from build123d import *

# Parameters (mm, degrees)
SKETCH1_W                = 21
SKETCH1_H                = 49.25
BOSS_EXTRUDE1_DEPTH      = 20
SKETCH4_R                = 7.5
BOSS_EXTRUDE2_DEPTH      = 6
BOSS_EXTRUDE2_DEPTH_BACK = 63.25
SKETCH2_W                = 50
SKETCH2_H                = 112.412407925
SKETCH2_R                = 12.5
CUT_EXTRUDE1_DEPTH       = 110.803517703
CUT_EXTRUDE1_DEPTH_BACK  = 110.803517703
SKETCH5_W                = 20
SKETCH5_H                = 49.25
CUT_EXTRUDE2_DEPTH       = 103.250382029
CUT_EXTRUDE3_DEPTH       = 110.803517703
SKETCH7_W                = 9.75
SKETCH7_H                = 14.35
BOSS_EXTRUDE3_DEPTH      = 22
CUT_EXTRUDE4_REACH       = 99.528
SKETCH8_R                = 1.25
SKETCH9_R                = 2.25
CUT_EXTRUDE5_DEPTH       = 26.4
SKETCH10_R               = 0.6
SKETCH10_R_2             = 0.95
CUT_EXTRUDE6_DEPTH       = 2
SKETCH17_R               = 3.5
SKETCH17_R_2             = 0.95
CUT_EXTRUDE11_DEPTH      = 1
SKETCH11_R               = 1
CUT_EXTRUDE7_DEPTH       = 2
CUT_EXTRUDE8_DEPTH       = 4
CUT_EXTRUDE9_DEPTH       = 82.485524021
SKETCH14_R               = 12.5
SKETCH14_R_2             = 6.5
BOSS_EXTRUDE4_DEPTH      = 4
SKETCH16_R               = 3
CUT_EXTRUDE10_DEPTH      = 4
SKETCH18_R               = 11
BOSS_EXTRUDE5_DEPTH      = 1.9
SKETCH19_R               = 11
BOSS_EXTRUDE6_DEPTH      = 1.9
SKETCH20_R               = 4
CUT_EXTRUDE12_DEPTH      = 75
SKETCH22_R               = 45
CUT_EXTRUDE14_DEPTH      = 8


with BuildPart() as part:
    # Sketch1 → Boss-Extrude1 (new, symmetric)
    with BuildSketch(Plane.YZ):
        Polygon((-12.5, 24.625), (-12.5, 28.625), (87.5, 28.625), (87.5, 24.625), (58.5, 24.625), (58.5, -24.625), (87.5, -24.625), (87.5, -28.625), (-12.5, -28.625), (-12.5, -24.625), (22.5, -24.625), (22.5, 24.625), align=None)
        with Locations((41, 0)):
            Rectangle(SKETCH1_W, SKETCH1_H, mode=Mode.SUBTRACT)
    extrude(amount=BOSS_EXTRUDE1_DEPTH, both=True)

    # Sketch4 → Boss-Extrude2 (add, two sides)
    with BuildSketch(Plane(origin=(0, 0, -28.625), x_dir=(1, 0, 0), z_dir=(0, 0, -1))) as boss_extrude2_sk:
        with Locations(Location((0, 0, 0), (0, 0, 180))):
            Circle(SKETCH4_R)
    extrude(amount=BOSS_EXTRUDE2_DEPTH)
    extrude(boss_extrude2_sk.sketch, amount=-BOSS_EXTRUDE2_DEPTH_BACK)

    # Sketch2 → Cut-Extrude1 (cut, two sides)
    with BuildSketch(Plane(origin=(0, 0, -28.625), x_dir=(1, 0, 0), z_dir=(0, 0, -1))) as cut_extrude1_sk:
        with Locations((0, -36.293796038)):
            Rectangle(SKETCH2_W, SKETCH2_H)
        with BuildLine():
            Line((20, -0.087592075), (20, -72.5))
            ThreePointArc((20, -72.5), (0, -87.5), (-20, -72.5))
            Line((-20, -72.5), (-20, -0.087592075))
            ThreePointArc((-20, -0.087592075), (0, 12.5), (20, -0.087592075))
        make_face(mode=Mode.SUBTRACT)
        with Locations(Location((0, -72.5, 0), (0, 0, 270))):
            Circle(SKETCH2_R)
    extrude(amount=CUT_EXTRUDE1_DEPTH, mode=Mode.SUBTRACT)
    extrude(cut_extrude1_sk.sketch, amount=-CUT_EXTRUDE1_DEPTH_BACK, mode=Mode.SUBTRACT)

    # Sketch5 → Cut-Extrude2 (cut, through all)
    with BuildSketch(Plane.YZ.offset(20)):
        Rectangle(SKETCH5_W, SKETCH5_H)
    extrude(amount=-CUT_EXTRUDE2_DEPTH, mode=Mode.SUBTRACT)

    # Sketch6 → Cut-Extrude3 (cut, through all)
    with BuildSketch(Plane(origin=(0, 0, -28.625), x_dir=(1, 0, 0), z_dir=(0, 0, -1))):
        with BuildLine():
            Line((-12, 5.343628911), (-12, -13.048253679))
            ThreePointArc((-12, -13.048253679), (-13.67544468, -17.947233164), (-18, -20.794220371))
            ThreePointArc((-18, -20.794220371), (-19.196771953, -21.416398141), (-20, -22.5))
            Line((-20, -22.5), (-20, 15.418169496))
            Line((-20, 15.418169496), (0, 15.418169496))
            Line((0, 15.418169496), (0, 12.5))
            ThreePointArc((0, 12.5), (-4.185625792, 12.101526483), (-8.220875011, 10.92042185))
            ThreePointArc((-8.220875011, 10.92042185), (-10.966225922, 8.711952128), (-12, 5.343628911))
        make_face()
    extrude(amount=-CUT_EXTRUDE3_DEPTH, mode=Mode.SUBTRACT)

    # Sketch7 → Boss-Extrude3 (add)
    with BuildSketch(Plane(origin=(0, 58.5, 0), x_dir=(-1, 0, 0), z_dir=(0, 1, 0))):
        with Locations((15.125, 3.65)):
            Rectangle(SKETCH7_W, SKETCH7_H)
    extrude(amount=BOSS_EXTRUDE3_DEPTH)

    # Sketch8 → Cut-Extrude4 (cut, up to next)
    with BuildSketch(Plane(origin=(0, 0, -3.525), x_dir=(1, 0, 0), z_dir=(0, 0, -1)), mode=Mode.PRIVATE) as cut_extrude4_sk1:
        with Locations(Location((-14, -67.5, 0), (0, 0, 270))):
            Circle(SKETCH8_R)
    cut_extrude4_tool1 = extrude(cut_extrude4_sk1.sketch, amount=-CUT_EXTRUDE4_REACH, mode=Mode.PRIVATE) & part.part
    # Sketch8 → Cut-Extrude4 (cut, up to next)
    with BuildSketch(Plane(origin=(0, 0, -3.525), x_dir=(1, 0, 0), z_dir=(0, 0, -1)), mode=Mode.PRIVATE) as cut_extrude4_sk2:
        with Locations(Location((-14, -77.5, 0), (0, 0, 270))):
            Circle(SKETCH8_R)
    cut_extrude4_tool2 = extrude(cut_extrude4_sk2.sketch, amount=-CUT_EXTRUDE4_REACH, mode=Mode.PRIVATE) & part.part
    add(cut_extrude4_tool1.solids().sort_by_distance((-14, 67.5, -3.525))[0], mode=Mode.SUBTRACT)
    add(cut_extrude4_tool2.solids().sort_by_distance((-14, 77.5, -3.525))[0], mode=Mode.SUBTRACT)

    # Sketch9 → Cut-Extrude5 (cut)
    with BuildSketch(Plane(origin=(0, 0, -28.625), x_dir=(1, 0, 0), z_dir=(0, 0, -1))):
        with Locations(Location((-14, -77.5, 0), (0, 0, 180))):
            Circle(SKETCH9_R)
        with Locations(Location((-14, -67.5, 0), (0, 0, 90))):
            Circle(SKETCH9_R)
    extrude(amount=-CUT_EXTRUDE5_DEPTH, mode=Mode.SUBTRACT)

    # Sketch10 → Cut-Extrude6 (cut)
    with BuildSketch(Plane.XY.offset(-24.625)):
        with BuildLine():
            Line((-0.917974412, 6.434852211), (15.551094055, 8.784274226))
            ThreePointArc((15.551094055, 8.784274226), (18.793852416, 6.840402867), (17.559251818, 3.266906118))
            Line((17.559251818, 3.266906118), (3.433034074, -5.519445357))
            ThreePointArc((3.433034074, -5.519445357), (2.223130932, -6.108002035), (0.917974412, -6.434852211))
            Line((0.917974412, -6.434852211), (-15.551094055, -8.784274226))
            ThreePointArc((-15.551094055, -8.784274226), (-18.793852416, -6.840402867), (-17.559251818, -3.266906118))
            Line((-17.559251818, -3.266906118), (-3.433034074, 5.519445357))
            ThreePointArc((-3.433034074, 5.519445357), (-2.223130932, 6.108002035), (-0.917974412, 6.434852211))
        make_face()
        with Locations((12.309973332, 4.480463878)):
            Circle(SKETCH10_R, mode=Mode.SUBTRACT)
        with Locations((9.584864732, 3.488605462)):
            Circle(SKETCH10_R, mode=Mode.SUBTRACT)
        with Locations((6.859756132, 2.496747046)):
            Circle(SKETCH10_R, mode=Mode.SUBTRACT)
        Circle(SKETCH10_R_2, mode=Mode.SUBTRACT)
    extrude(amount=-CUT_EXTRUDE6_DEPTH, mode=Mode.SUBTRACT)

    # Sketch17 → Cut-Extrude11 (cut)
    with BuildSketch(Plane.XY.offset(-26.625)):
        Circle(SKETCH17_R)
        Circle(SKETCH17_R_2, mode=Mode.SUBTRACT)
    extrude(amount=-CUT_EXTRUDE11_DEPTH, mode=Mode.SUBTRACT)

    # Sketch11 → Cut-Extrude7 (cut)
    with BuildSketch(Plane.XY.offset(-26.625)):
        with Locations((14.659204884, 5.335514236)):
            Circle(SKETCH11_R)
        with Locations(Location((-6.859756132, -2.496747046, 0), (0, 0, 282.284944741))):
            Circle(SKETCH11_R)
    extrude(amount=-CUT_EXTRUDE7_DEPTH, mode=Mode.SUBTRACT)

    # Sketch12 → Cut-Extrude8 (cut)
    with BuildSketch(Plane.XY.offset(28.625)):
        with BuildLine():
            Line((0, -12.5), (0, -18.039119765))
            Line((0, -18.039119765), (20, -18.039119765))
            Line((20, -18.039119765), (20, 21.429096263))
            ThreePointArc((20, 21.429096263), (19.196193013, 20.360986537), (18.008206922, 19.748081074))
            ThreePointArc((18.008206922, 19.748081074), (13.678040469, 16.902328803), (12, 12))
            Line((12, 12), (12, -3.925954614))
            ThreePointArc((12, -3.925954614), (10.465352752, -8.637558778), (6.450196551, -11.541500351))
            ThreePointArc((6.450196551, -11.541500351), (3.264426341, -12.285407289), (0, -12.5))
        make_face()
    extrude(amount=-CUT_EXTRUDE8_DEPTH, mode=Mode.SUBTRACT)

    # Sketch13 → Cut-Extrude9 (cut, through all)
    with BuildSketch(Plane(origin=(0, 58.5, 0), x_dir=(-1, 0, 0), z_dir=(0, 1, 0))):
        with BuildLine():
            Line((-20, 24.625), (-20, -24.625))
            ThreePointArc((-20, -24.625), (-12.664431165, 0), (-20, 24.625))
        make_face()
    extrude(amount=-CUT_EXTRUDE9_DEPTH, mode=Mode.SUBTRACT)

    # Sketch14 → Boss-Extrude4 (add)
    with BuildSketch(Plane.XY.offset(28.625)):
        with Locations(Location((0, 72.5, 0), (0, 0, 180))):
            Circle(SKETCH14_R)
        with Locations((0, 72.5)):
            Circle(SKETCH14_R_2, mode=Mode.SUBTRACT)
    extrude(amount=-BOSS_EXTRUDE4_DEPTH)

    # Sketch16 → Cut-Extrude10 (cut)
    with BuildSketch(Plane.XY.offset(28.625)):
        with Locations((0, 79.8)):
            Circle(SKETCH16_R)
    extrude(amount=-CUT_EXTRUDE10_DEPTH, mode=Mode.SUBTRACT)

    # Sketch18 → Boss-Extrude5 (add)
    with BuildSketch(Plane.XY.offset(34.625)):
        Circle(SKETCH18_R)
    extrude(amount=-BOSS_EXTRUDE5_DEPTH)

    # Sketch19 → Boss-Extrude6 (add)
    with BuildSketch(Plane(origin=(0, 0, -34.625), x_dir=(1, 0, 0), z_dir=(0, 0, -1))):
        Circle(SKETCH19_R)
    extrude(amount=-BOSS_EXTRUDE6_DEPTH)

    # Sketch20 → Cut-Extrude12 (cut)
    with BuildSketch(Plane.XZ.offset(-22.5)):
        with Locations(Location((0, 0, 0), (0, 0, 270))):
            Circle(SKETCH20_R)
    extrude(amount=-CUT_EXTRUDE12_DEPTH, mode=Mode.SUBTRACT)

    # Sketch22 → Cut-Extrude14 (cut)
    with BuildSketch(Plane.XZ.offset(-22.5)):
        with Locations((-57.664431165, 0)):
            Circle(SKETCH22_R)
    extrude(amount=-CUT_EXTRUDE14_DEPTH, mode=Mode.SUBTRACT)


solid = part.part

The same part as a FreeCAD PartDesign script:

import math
import FreeCAD as App
import Part
import Sketcher

doc = App.newDocument("Part")
body = doc.addObject("PartDesign::Body", "Body")

# Sketch on YZ plane
sketch1 = doc.addObject("Sketcher::SketchObject", "Sketch")
body.addObject(sketch1)
sketch1.AttachmentSupport = (doc.YZ_Plane, [""])
sketch1.MapMode = "FlatFace"
sketch1.addGeometry(Part.LineSegment(App.Vector(-12.5, 28.6, 0), App.Vector(-12.5, 24.6, 0)), False)
sketch1.addGeometry(Part.LineSegment(App.Vector(-12.5, 24.6, 0), App.Vector(22.5, 24.6, 0)), False)
sketch1.addGeometry(Part.LineSegment(App.Vector(22.5, 24.6, 0), App.Vector(22.5, -24.6, 0)), False)
sketch1.addGeometry(Part.LineSegment(App.Vector(22.5, -24.6, 0), App.Vector(-12.5, -24.6, 0)), False)
sketch1.addGeometry(Part.LineSegment(App.Vector(-12.5, -24.6, 0), App.Vector(-12.5, -28.6, 0)), False)
sketch1.addGeometry(Part.LineSegment(App.Vector(-12.5, -28.6, 0), App.Vector(87.5, -28.6, 0)), False)
sketch1.addGeometry(Part.LineSegment(App.Vector(87.5, -28.6, 0), App.Vector(87.5, -24.6, 0)), False)
sketch1.addGeometry(Part.LineSegment(App.Vector(87.5, -24.6, 0), App.Vector(58.5, -24.6, 0)), False)
sketch1.addGeometry(Part.LineSegment(App.Vector(58.5, -24.6, 0), App.Vector(58.5, 24.6, 0)), False)
sketch1.addGeometry(Part.LineSegment(App.Vector(58.5, 24.6, 0), App.Vector(87.5, 24.6, 0)), False)
sketch1.addGeometry(Part.LineSegment(App.Vector(87.5, 24.6, 0), App.Vector(87.5, 28.6, 0)), False)
sketch1.addGeometry(Part.LineSegment(App.Vector(87.5, 28.6, 0), App.Vector(-12.5, 28.6, 0)), False)
sketch1.addGeometry(Part.LineSegment(App.Vector(30.5, -24.6, 0), App.Vector(30.5, 24.6, 0)), False)
sketch1.addGeometry(Part.LineSegment(App.Vector(30.5, 24.6, 0), App.Vector(51.5, 24.6, 0)), False)
sketch1.addGeometry(Part.LineSegment(App.Vector(51.5, 24.6, 0), App.Vector(51.5, -24.6, 0)), False)
sketch1.addGeometry(Part.LineSegment(App.Vector(51.5, -24.6, 0), App.Vector(30.5, -24.6, 0)), False)
sketch1.addConstraint(Sketcher.Constraint("Coincident", 0, 2, 1, 1))
sketch1.addConstraint(Sketcher.Constraint("Coincident", 1, 2, 2, 1))
sketch1.addConstraint(Sketcher.Constraint("Coincident", 2, 2, 3, 1))
sketch1.addConstraint(Sketcher.Constraint("Coincident", 3, 2, 4, 1))
sketch1.addConstraint(Sketcher.Constraint("Coincident", 4, 2, 5, 1))
sketch1.addConstraint(Sketcher.Constraint("Coincident", 5, 2, 6, 1))
sketch1.addConstraint(Sketcher.Constraint("Coincident", 6, 2, 7, 1))
sketch1.addConstraint(Sketcher.Constraint("Coincident", 7, 2, 8, 1))
sketch1.addConstraint(Sketcher.Constraint("Coincident", 8, 2, 9, 1))
sketch1.addConstraint(Sketcher.Constraint("Coincident", 9, 2, 10, 1))
sketch1.addConstraint(Sketcher.Constraint("Coincident", 10, 2, 11, 1))
sketch1.addConstraint(Sketcher.Constraint("Coincident", 11, 2, 0, 1))
sketch1.addConstraint(Sketcher.Constraint("Coincident", 12, 2, 13, 1))
sketch1.addConstraint(Sketcher.Constraint("Coincident", 13, 2, 14, 1))
sketch1.addConstraint(Sketcher.Constraint("Coincident", 14, 2, 15, 1))
sketch1.addConstraint(Sketcher.Constraint("Coincident", 15, 2, 12, 1))
sketch1.addConstraint(Sketcher.Constraint("Vertical", 0))
sketch1.addConstraint(Sketcher.Constraint("Horizontal", 1))
sketch1.addConstraint(Sketcher.Constraint("Vertical", 2))
sketch1.addConstraint(Sketcher.Constraint("Horizontal", 3))
sketch1.addConstraint(Sketcher.Constraint("Vertical", 4))
sketch1.addConstraint(Sketcher.Constraint("Horizontal", 5))
sketch1.addConstraint(Sketcher.Constraint("Vertical", 6))
sketch1.addConstraint(Sketcher.Constraint("Horizontal", 7))
sketch1.addConstraint(Sketcher.Constraint("Vertical", 8))
sketch1.addConstraint(Sketcher.Constraint("Horizontal", 9))
sketch1.addConstraint(Sketcher.Constraint("Vertical", 10))
sketch1.addConstraint(Sketcher.Constraint("Horizontal", 11))
sketch1.addConstraint(Sketcher.Constraint("Vertical", 12))
sketch1.addConstraint(Sketcher.Constraint("Horizontal", 13))
sketch1.addConstraint(Sketcher.Constraint("Vertical", 14))
sketch1.addConstraint(Sketcher.Constraint("Horizontal", 15))
sketch1.addConstraint(Sketcher.Constraint("Symmetric", 0, 2, 3, 2, -1))
sketch1.addConstraint(Sketcher.Constraint("Symmetric", 6, 2, 9, 2, -1))
sketch1.addConstraint(Sketcher.Constraint("Horizontal", 3, 2, 6, 2))
sketch1.addConstraint(Sketcher.Constraint("Horizontal", 9, 2, 12, 2))
sketch1.addConstraint(Sketcher.Constraint("Horizontal", 7, 2, 14, 2))
sketch1.addConstraint(Sketcher.Constraint("Equal", 0, 4))
sketch1.addConstraint(Sketcher.Constraint("DistanceX", 1, 1, 1, 2, 35.0))
sketch1.addConstraint(Sketcher.Constraint("DistanceX", 5, 1, 5, 2, 100.0))
sketch1.addConstraint(Sketcher.Constraint("DistanceX", 7, 2, 7, 1, 29.0))
sketch1.addConstraint(Sketcher.Constraint("DistanceX", 13, 1, 13, 2, 21.0))
sketch1.addConstraint(Sketcher.Constraint("DistanceY", 0, 2, 0, 1, 4.0))
sketch1.addConstraint(Sketcher.Constraint("DistanceX", 1, 2, 12, 2, 8.0))
sketch1.addConstraint(Sketcher.Constraint("DistanceY", 2, 2, 2, 1, 49.25))
sketch1.addConstraint(Sketcher.Constraint("DistanceX", 0, 2, -1, 1, 12.5))
pad1 = doc.addObject("PartDesign::Pad", "Pad")
body.addObject(pad1)
pad1.Profile = sketch1
pad1.Length = 40
pad1.Midplane = True

# Sketch on XY plane
sketch2 = doc.addObject("Sketcher::SketchObject", "Sketch001")
body.addObject(sketch2)
sketch2.AttachmentSupport = (doc.XY_Plane, [""])
sketch2.MapMode = "FlatFace"
sketch2.AttachmentOffset = App.Placement(App.Vector(0, 0, -28.625), App.Rotation())
sketch2.addGeometry(Part.Circle(App.Vector(0, 0, 0), App.Vector(0, 0, 1), 8), False)
sketch2.addConstraint(Sketcher.Constraint("Coincident", 0, 3, -1, 1))
sketch2.addConstraint(Sketcher.Constraint("Diameter", 0, 15.0))
pad2 = doc.addObject("PartDesign::Pad", "Pad001")
body.addObject(pad2)
pad2.Profile = sketch2
pad2.Type = "TwoLengths"
pad2.Length = 6
pad2.Length2 = 63.25
pad2.Reversed = True

# Sketch on XY plane
sketch3 = doc.addObject("Sketcher::SketchObject", "Sketch002")
body.addObject(sketch3)
sketch3.AttachmentSupport = (doc.XY_Plane, [""])
sketch3.MapMode = "FlatFace"
sketch3.AttachmentOffset = App.Placement(App.Vector(0, 0, -28.625), App.Rotation())
sketch3.addGeometry(Part.LineSegment(App.Vector(-25, -20, 0), App.Vector(-25, 92, 0)), False)
sketch3.addGeometry(Part.LineSegment(App.Vector(-25, 92, 0), App.Vector(25, 92, 0)), False)
sketch3.addGeometry(Part.LineSegment(App.Vector(25, 92, 0), App.Vector(25, -20, 0)), False)
sketch3.addGeometry(Part.LineSegment(App.Vector(25, -20, 0), App.Vector(-25, -20, 0)), False)
sketch3.addGeometry(Part.ArcOfCircle(Part.Circle(App.Vector(0, 10, 0), App.Vector(0, 0, 1), 22), math.radians(-154), math.radians(-26)), False)
sketch3.addGeometry(Part.LineSegment(App.Vector(20, 0, 0), App.Vector(20, 72, 0)), False)
sketch3.addGeometry(Part.ArcOfCircle(Part.Circle(App.Vector(0, 67, 0), App.Vector(0, 0, 1), 21), math.radians(16), math.radians(164)), False)
sketch3.addGeometry(Part.LineSegment(App.Vector(-20, 72, 0), App.Vector(-20, 0, 0)), False)
sketch3.addGeometry(Part.Circle(App.Vector(0, 72, 0), App.Vector(0, 0, 1), 12), False)
sketch3.addConstraint(Sketcher.Constraint("Coincident", 0, 2, 1, 1))
sketch3.addConstraint(Sketcher.Constraint("Coincident", 1, 2, 2, 1))
sketch3.addConstraint(Sketcher.Constraint("Coincident", 2, 2, 3, 1))
sketch3.addConstraint(Sketcher.Constraint("Coincident", 3, 2, 0, 1))
sketch3.addConstraint(Sketcher.Constraint("Coincident", 4, 2, 5, 1))
sketch3.addConstraint(Sketcher.Constraint("Coincident", 5, 2, 6, 1))
sketch3.addConstraint(Sketcher.Constraint("Coincident", 6, 2, 7, 1))
sketch3.addConstraint(Sketcher.Constraint("Coincident", 7, 2, 4, 1))
sketch3.addConstraint(Sketcher.Constraint("Vertical", 0))
sketch3.addConstraint(Sketcher.Constraint("Horizontal", 1))
sketch3.addConstraint(Sketcher.Constraint("Vertical", 2))
sketch3.addConstraint(Sketcher.Constraint("Horizontal", 3))
sketch3.addConstraint(Sketcher.Constraint("Vertical", 5))
sketch3.addConstraint(Sketcher.Constraint("Vertical", 7))
sketch3.addConstraint(Sketcher.Constraint("Symmetric", 5, 2, 6, 2, -2))
sketch3.addConstraint(Sketcher.Constraint("PointOnObject", 4, 3, -2))
sketch3.addConstraint(Sketcher.Constraint("PointOnObject", 8, 3, -2))
sketch3.addConstraint(Sketcher.Constraint("Horizontal", 8, 3, 5, 2))
sketch3.addConstraint(Sketcher.Constraint("Diameter", 8, 25.0))
sketch3.addConstraint(Sketcher.Constraint("DistanceX", 1, 1, 1, 2, 50.0))
sketch3.addConstraint(Sketcher.Constraint("DistanceX", 0, 2, -1, 1, 25.0))
sketch3.addConstraint(Sketcher.Constraint("DistanceX", -1, 1, 4, 2, 20.0))
sketch3.addConstraint(Sketcher.Constraint("DistanceY", 8, 3, 0, 2, 20.0))
sketch3.addConstraint(Sketcher.Constraint("DistanceY", 2, 2, 4, 2, 20.0))
sketch3.addConstraint(Sketcher.Constraint("DistanceY", -1, 1, 8, 3, 72.5))
sketch3.addConstraint(Sketcher.Constraint("Radius", 4, 22.182458))
sketch3.addConstraint(Sketcher.Constraint("Radius", 6, 20.833333))
sketch3.addConstraint(Sketcher.Constraint("DistanceY", 0, 1, 0, 2, 112.412408))
pocket1 = doc.addObject("PartDesign::Pocket", "Pocket")
body.addObject(pocket1)
pocket1.Profile = sketch3
pocket1.Type = "ThroughAll"
pocket1.Midplane = True

# Sketch on YZ plane
sketch4 = doc.addObject("Sketcher::SketchObject", "Sketch003")
body.addObject(sketch4)
sketch4.AttachmentSupport = (doc.YZ_Plane, [""])
sketch4.MapMode = "FlatFace"
sketch4.AttachmentOffset = App.Placement(App.Vector(0, 0, 20), App.Rotation())
sketch4.addGeometry(Part.LineSegment(App.Vector(-10, 25, 0), App.Vector(-10, -25, 0)), False)
sketch4.addGeometry(Part.LineSegment(App.Vector(-10, -25, 0), App.Vector(10, -25, 0)), False)
sketch4.addGeometry(Part.LineSegment(App.Vector(10, -25, 0), App.Vector(10, 25, 0)), False)
sketch4.addGeometry(Part.LineSegment(App.Vector(10, 25, 0), App.Vector(-10, 25, 0)), False)
sketch4.addConstraint(Sketcher.Constraint("Coincident", 0, 2, 1, 1))
sketch4.addConstraint(Sketcher.Constraint("Coincident", 1, 2, 2, 1))
sketch4.addConstraint(Sketcher.Constraint("Coincident", 2, 2, 3, 1))
sketch4.addConstraint(Sketcher.Constraint("Coincident", 3, 2, 0, 1))
sketch4.addConstraint(Sketcher.Constraint("Vertical", 0))
sketch4.addConstraint(Sketcher.Constraint("Horizontal", 1))
sketch4.addConstraint(Sketcher.Constraint("Vertical", 2))
sketch4.addConstraint(Sketcher.Constraint("Horizontal", 3))
sketch4.addConstraint(Sketcher.Constraint("Symmetric", 0, 2, 2, 2, -1, 1))
sketch4.addConstraint(Sketcher.Constraint("DistanceX", 1, 1, 1, 2, 20.0))
sketch4.addConstraint(Sketcher.Constraint("DistanceY", 0, 2, 0, 1, 49.25))
pocket2 = doc.addObject("PartDesign::Pocket", "Pocket001")
body.addObject(pocket2)
pocket2.Profile = sketch4
pocket2.Type = "ThroughAll"

# Sketch on XY plane
sketch5 = doc.addObject("Sketcher::SketchObject", "Sketch004")
body.addObject(sketch5)
sketch5.AttachmentSupport = (doc.XY_Plane, [""])
sketch5.MapMode = "FlatFace"
sketch5.AttachmentOffset = App.Placement(App.Vector(0, 0, -28.625), App.Rotation())
sketch5.addGeometry(Part.LineSegment(App.Vector(-12, 13, 0), App.Vector(-12, -5.3, 0)), False)
sketch5.addGeometry(Part.ArcOfCircle(Part.Circle(App.Vector(-6, -5.3, 0), App.Vector(0, 0, 1), 6), math.radians(180), math.radians(248)), False)
sketch5.addGeometry(Part.ArcOfCircle(Part.Circle(App.Vector(0, 9.7, 0), App.Vector(0, 0, 1), 22.2), math.radians(-112), math.radians(-90)), False)
sketch5.addGeometry(Part.LineSegment(App.Vector(0, -12.5, 0), App.Vector(0, -15.4, 0)), False)
sketch5.addGeometry(Part.LineSegment(App.Vector(0, -15.4, 0), App.Vector(-20, -15.4, 0)), False)
sketch5.addGeometry(Part.LineSegment(App.Vector(-20, -15.4, 0), App.Vector(-20, 22.5, 0)), False)
sketch5.addGeometry(Part.ArcOfCircle(Part.Circle(App.Vector(-17.3, 23.7, 0), App.Vector(0, 0, 1), 3), math.radians(-156), math.radians(-104)), False)
sketch5.addGeometry(Part.ArcOfCircle(Part.Circle(App.Vector(-20, 13, 0), App.Vector(0, 0, 1), 8), math.radians(0), math.radians(76)), False)
sketch5.addConstraint(Sketcher.Constraint("Tangent", 0, 2, 1, 1))
sketch5.addConstraint(Sketcher.Constraint("Tangent", 1, 2, 2, 1))
sketch5.addConstraint(Sketcher.Constraint("Coincident", 2, 2, 3, 1))
sketch5.addConstraint(Sketcher.Constraint("Coincident", 3, 2, 4, 1))
sketch5.addConstraint(Sketcher.Constraint("Coincident", 4, 2, 5, 1))
sketch5.addConstraint(Sketcher.Constraint("Coincident", 5, 2, 6, 1))
sketch5.addConstraint(Sketcher.Constraint("Tangent", 6, 2, 7, 2))
sketch5.addConstraint(Sketcher.Constraint("Tangent", 7, 1, 0, 1))
sketch5.addConstraint(Sketcher.Constraint("Vertical", 0))
sketch5.addConstraint(Sketcher.Constraint("Vertical", 3))
sketch5.addConstraint(Sketcher.Constraint("Horizontal", 4))
sketch5.addConstraint(Sketcher.Constraint("Vertical", 5))
sketch5.addConstraint(Sketcher.Constraint("PointOnObject", 2, 3, -2))
sketch5.addConstraint(Sketcher.Constraint("PointOnObject", 2, 2, -2))
sketch5.addConstraint(Sketcher.Constraint("Vertical", 7, 3, 4, 2))
sketch5.addConstraint(Sketcher.Constraint("Radius", 6, 3.0))
sketch5.addConstraint(Sketcher.Constraint("Radius", 7, 8.0))
sketch5.addConstraint(Sketcher.Constraint("DistanceX", 4, 2, 4, 1, 20.0))
sketch5.addConstraint(Sketcher.Constraint("DistanceX", 6, 2, -1, 1, 18.0))
sketch5.addConstraint(Sketcher.Constraint("DistanceY", 2, 2, -1, 1, 12.5))
sketch5.addConstraint(Sketcher.Constraint("DistanceY", -1, 1, 5, 2, 22.5))
sketch5.addConstraint(Sketcher.Constraint("Radius", 2, 22.182458))
sketch5.addConstraint(Sketcher.Constraint("Radius", 1, 6.004354))
sketch5.addConstraint(Sketcher.Constraint("DistanceY", 3, 2, 3, 1, 2.918169))
pocket3 = doc.addObject("PartDesign::Pocket", "Pocket002")
body.addObject(pocket3)
pocket3.Profile = sketch5
pocket3.Type = "ThroughAll"
pocket3.Reversed = True

# Sketch on XZ plane
sketch6 = doc.addObject("Sketcher::SketchObject", "Sketch005")
body.addObject(sketch6)
sketch6.AttachmentSupport = (doc.XZ_Plane, [""])
sketch6.MapMode = "FlatFace"
sketch6.AttachmentOffset = App.Placement(App.Vector(0, 0, -58.5), App.Rotation())
sketch6.addGeometry(Part.LineSegment(App.Vector(-10, 11, 0), App.Vector(-10, -4, 0)), False)
sketch6.addGeometry(Part.LineSegment(App.Vector(-10, -4, 0), App.Vector(-20, -4, 0)), False)
sketch6.addGeometry(Part.LineSegment(App.Vector(-20, -4, 0), App.Vector(-20, 11, 0)), False)
sketch6.addGeometry(Part.LineSegment(App.Vector(-20, 11, 0), App.Vector(-10, 11, 0)), False)
sketch6.addConstraint(Sketcher.Constraint("Coincident", 0, 2, 1, 1))
sketch6.addConstraint(Sketcher.Constraint("Coincident", 1, 2, 2, 1))
sketch6.addConstraint(Sketcher.Constraint("Coincident", 2, 2, 3, 1))
sketch6.addConstraint(Sketcher.Constraint("Coincident", 3, 2, 0, 1))
sketch6.addConstraint(Sketcher.Constraint("Vertical", 0))
sketch6.addConstraint(Sketcher.Constraint("Horizontal", 1))
sketch6.addConstraint(Sketcher.Constraint("Vertical", 2))
sketch6.addConstraint(Sketcher.Constraint("Horizontal", 3))
sketch6.addConstraint(Sketcher.Constraint("DistanceX", 1, 2, -1, 1, 20.0))
sketch6.addConstraint(Sketcher.Constraint("DistanceX", 1, 2, 1, 1, 9.75))
sketch6.addConstraint(Sketcher.Constraint("DistanceY", 0, 2, 0, 1, 14.35))
sketch6.addConstraint(Sketcher.Constraint("DistanceY", 0, 2, -1, 1, 3.525))
pad3 = doc.addObject("PartDesign::Pad", "Pad002")
body.addObject(pad3)
pad3.Profile = sketch6
pad3.Length = 22
pad3.Reversed = True

# Sketch on XY plane
sketch7 = doc.addObject("Sketcher::SketchObject", "Sketch006")
body.addObject(sketch7)
sketch7.AttachmentSupport = (doc.XY_Plane, [""])
sketch7.MapMode = "FlatFace"
sketch7.AttachmentOffset = App.Placement(App.Vector(0, 0, -3.525), App.Rotation())
sketch7.addGeometry(Part.Circle(App.Vector(-14, 67.5, 0), App.Vector(0, 0, 1), 1.2), False)
sketch7.addConstraint(Sketcher.Constraint("Diameter", 0, 2.5))
sketch7.addConstraint(Sketcher.Constraint("DistanceX", 0, 3, -1, 1, 14.0))
sketch7.addConstraint(Sketcher.Constraint("DistanceY", -1, 1, 0, 3, 67.5))
pocket4 = doc.addObject("PartDesign::Pocket", "Pocket003")
body.addObject(pocket4)
pocket4.Profile = sketch7
pocket4.Type = "UpToFirst"
pocket4.Reversed = True

# Sketch on XY plane
sketch8 = doc.addObject("Sketcher::SketchObject", "Sketch007")
body.addObject(sketch8)
sketch8.AttachmentSupport = (doc.XY_Plane, [""])
sketch8.MapMode = "FlatFace"
sketch8.AttachmentOffset = App.Placement(App.Vector(0, 0, -3.525), App.Rotation())
sketch8.addGeometry(Part.Circle(App.Vector(-14, 77.5, 0), App.Vector(0, 0, 1), 1.2), False)
sketch8.addConstraint(Sketcher.Constraint("Diameter", 0, 2.5))
sketch8.addConstraint(Sketcher.Constraint("DistanceX", 0, 3, -1, 1, 14.0))
sketch8.addConstraint(Sketcher.Constraint("DistanceY", -1, 1, 0, 3, 77.5))
pocket5 = doc.addObject("PartDesign::Pocket", "Pocket004")
body.addObject(pocket5)
pocket5.Profile = sketch8
pocket5.Type = "UpToFirst"
pocket5.Reversed = True

# Sketch on XY plane
sketch9 = doc.addObject("Sketcher::SketchObject", "Sketch008")
body.addObject(sketch9)
sketch9.AttachmentSupport = (doc.XY_Plane, [""])
sketch9.MapMode = "FlatFace"
sketch9.AttachmentOffset = App.Placement(App.Vector(0, 0, -28.625), App.Rotation())
sketch9.addGeometry(Part.Circle(App.Vector(-14, 77.5, 0), App.Vector(0, 0, 1), 2.2), False)
sketch9.addGeometry(Part.Circle(App.Vector(-14, 67.5, 0), App.Vector(0, 0, 1), 2.2), False)
sketch9.addConstraint(Sketcher.Constraint("Equal", 0, 1))
sketch9.addConstraint(Sketcher.Constraint("Vertical", 0, 3, 1, 3))
sketch9.addConstraint(Sketcher.Constraint("Diameter", 0, 4.5))
sketch9.addConstraint(Sketcher.Constraint("DistanceX", 0, 3, -1, 1, 14.0))
sketch9.addConstraint(Sketcher.Constraint("DistanceY", 1, 3, 0, 3, 10.0))
sketch9.addConstraint(Sketcher.Constraint("DistanceY", -1, 1, 0, 3, 77.5))
pocket6 = doc.addObject("PartDesign::Pocket", "Pocket005")
body.addObject(pocket6)
pocket6.Profile = sketch9
pocket6.Length = 26.4
pocket6.Reversed = True

# Sketch on XY plane
sketch10 = doc.addObject("Sketcher::SketchObject", "Sketch009")
body.addObject(sketch10)
sketch10.AttachmentSupport = (doc.XY_Plane, [""])
sketch10.MapMode = "FlatFace"
sketch10.AttachmentOffset = App.Placement(App.Vector(0, 0, -24.625), App.Rotation())
sketch10.addGeometry(Part.LineSegment(App.Vector(15.6, 8.8, 0), App.Vector(-0.9, 6.4, 0)), False)
sketch10.addGeometry(Part.ArcOfCircle(Part.Circle(App.Vector(0, 0, 0), App.Vector(0, 0, 1), 6.5), math.radians(98), math.radians(122)), False)
sketch10.addGeometry(Part.LineSegment(App.Vector(-3.4, 5.5, 0), App.Vector(-17.6, -3.3, 0)), False)
sketch10.addGeometry(Part.ArcOfCircle(Part.Circle(App.Vector(-16, -5.8, 0), App.Vector(0, 0, 1), 3), math.radians(122), math.radians(278)), False)
sketch10.addGeometry(Part.LineSegment(App.Vector(-15.6, -8.8, 0), App.Vector(0.9, -6.4, 0)), False)
sketch10.addGeometry(Part.ArcOfCircle(Part.Circle(App.Vector(0, 0, 0), App.Vector(0, 0, 1), 6.5), math.radians(-82), math.radians(-58)), False)
sketch10.addGeometry(Part.LineSegment(App.Vector(3.4, -5.5, 0), App.Vector(17.6, 3.3, 0)), False)
sketch10.addGeometry(Part.ArcOfCircle(Part.Circle(App.Vector(16, 5.8, 0), App.Vector(0, 0, 1), 3), math.radians(-58), math.radians(98)), False)
sketch10.addGeometry(Part.Circle(App.Vector(0, 0, 0), App.Vector(0, 0, 1), 0.9), False)
sketch10.addGeometry(Part.Circle(App.Vector(9.6, 3.5, 0), App.Vector(0, 0, 1), 0.6), False)
sketch10.addGeometry(Part.Circle(App.Vector(6.9, 2.5, 0), App.Vector(0, 0, 1), 0.6), False)
sketch10.addGeometry(Part.Circle(App.Vector(12.3, 4.5, 0), App.Vector(0, 0, 1), 0.6), False)
sketch10.addConstraint(Sketcher.Constraint("Tangent", 0, 2, 1, 1))
sketch10.addConstraint(Sketcher.Constraint("Tangent", 1, 2, 2, 1))
sketch10.addConstraint(Sketcher.Constraint("Tangent", 2, 2, 3, 1))
sketch10.addConstraint(Sketcher.Constraint("Tangent", 3, 2, 4, 1))
sketch10.addConstraint(Sketcher.Constraint("Tangent", 4, 2, 5, 1))
sketch10.addConstraint(Sketcher.Constraint("Tangent", 5, 2, 6, 1))
sketch10.addConstraint(Sketcher.Constraint("Tangent", 6, 2, 7, 1))
sketch10.addConstraint(Sketcher.Constraint("Tangent", 7, 2, 0, 1))
sketch10.addConstraint(Sketcher.Constraint("Coincident", 1, 3, -1, 1))
sketch10.addConstraint(Sketcher.Constraint("Coincident", 5, 3, -1, 1))
sketch10.addConstraint(Sketcher.Constraint("Coincident", 8, 3, -1, 1))
sketch10.addConstraint(Sketcher.Constraint("Equal", 1, 5))
sketch10.addConstraint(Sketcher.Constraint("Equal", 3, 7))
sketch10.addConstraint(Sketcher.Constraint("Equal", 9, 10))
sketch10.addConstraint(Sketcher.Constraint("Equal", 10, 11))
sketch10.addConstraint(Sketcher.Constraint("Symmetric", 3, 3, 7, 3, -1, 1))
sketch10.addConstraint(Sketcher.Constraint("Radius", 3, 3.0))
sketch10.addConstraint(Sketcher.Constraint("Diameter", 8, 1.9))
sketch10.addConstraint(Sketcher.Constraint("Diameter", 9, 1.2))
sketch10.addConstraint(Sketcher.Constraint("Radius", 1, 6.5))
sketch10.addConstraint(Sketcher.Constraint("DistanceX", 11, 3, 7, 3, 3.664801))
sketch10.addConstraint(Sketcher.Constraint("DistanceY", 10, 3, 1, 2, 3.022698))
sketch10.addConstraint(Sketcher.Constraint("DistanceY", 4, 2, 10, 3, 8.931599))
sketch10.addConstraint(Sketcher.Constraint("DistanceY", 6, 2, 9, 3, 0.221699))
sketch10.addConstraint(Sketcher.Constraint("DistanceX", 2, 2, -1, 1, 17.559252))
sketch10.addConstraint(Sketcher.Constraint("DistanceX", 9, 3, 7, 3, 6.38991))
sketch10.addConstraint(Sketcher.Constraint("DistanceX", 10, 3, 9, 3, 2.725109))
sketch10.addConstraint(Sketcher.Constraint("DistanceY", 9, 3, 11, 3, 0.991858))
pocket7 = doc.addObject("PartDesign::Pocket", "Pocket006")
body.addObject(pocket7)
pocket7.Profile = sketch10
pocket7.Length = 2

# Sketch on XY plane
sketch11 = doc.addObject("Sketcher::SketchObject", "Sketch010")
body.addObject(sketch11)
sketch11.AttachmentSupport = (doc.XY_Plane, [""])
sketch11.MapMode = "FlatFace"
sketch11.AttachmentOffset = App.Placement(App.Vector(0, 0, -26.625), App.Rotation())
sketch11.addGeometry(Part.Circle(App.Vector(0, 0, 0), App.Vector(0, 0, 1), 3.5), False)
sketch11.addGeometry(Part.Circle(App.Vector(0, 0, 0), App.Vector(0, 0, 1), 0.9), False)
sketch11.addConstraint(Sketcher.Constraint("Coincident", 0, 3, -1, 1))
sketch11.addConstraint(Sketcher.Constraint("Coincident", 1, 3, -1, 1))
sketch11.addConstraint(Sketcher.Constraint("Diameter", 0, 7.0))
sketch11.addConstraint(Sketcher.Constraint("Diameter", 1, 1.9))
pocket8 = doc.addObject("PartDesign::Pocket", "Pocket007")
body.addObject(pocket8)
pocket8.Profile = sketch11
pocket8.Length = 1

# Sketch on XY plane
sketch12 = doc.addObject("Sketcher::SketchObject", "Sketch011")
body.addObject(sketch12)
sketch12.AttachmentSupport = (doc.XY_Plane, [""])
sketch12.MapMode = "FlatFace"
sketch12.AttachmentOffset = App.Placement(App.Vector(0, 0, -26.625), App.Rotation())
sketch12.addGeometry(Part.Circle(App.Vector(14.7, 5.3, 0), App.Vector(0, 0, 1), 1), False)
sketch12.addGeometry(Part.Circle(App.Vector(-6.9, -2.5, 0), App.Vector(0, 0, 1), 1), False)
sketch12.addConstraint(Sketcher.Constraint("Equal", 0, 1))
sketch12.addConstraint(Sketcher.Constraint("Diameter", 0, 2.0))
sketch12.addConstraint(Sketcher.Constraint("DistanceX", 1, 3, 0, 3, 21.518961))
sketch12.addConstraint(Sketcher.Constraint("DistanceY", 1, 3, 0, 3, 7.832261))
sketch12.addConstraint(Sketcher.Constraint("DistanceX", -1, 1, 0, 3, 14.659205))
sketch12.addConstraint(Sketcher.Constraint("DistanceY", -1, 1, 0, 3, 5.335514))
pocket9 = doc.addObject("PartDesign::Pocket", "Pocket008")
body.addObject(pocket9)
pocket9.Profile = sketch12
pocket9.Length = 2

# Sketch on XY plane
sketch13 = doc.addObject("Sketcher::SketchObject", "Sketch012")
body.addObject(sketch13)
sketch13.AttachmentSupport = (doc.XY_Plane, [""])
sketch13.MapMode = "FlatFace"
sketch13.AttachmentOffset = App.Placement(App.Vector(0, 0, 28.625), App.Rotation())
sketch13.addGeometry(Part.LineSegment(App.Vector(0, -12.5, 0), App.Vector(0, -18, 0)), False)
sketch13.addGeometry(Part.LineSegment(App.Vector(0, -18, 0), App.Vector(20, -18, 0)), False)
sketch13.addGeometry(Part.LineSegment(App.Vector(20, -18, 0), App.Vector(20, 21.4, 0)), False)
sketch13.addGeometry(Part.ArcOfCircle(Part.Circle(App.Vector(17.3, 22.7, 0), App.Vector(0, 0, 1), 3), math.radians(-76), math.radians(-24)), False)
sketch13.addGeometry(Part.ArcOfCircle(Part.Circle(App.Vector(20, 12, 0), App.Vector(0, 0, 1), 8), math.radians(104), math.radians(180)), False)
sketch13.addGeometry(Part.LineSegment(App.Vector(12, 12, 0), App.Vector(12, -3.9, 0)), False)
sketch13.addGeometry(Part.ArcOfCircle(Part.Circle(App.Vector(4, -3.9, 0), App.Vector(0, 0, 1), 8), math.radians(-72), math.radians(0)), False)
sketch13.addGeometry(Part.ArcOfCircle(Part.Circle(App.Vector(0.3, 7.5, 0), App.Vector(0, 0, 1), 20), math.radians(-90.93), math.radians(-72.17)), False)
sketch13.addConstraint(Sketcher.Constraint("Coincident", 0, 2, 1, 1))
sketch13.addConstraint(Sketcher.Constraint("Coincident", 1, 2, 2, 1))
sketch13.addConstraint(Sketcher.Constraint("Coincident", 2, 2, 3, 2))
sketch13.addConstraint(Sketcher.Constraint("Tangent", 3, 1, 4, 1))
sketch13.addConstraint(Sketcher.Constraint("Tangent", 4, 2, 5, 1))
sketch13.addConstraint(Sketcher.Constraint("Tangent", 5, 2, 6, 2))
sketch13.addConstraint(Sketcher.Constraint("Tangent", 6, 1, 7, 2))
sketch13.addConstraint(Sketcher.Constraint("Coincident", 7, 1, 0, 1))
sketch13.addConstraint(Sketcher.Constraint("Vertical", 0))
sketch13.addConstraint(Sketcher.Constraint("Horizontal", 1))
sketch13.addConstraint(Sketcher.Constraint("Vertical", 2))
sketch13.addConstraint(Sketcher.Constraint("Vertical", 5))
sketch13.addConstraint(Sketcher.Constraint("Equal", 4, 6))
sketch13.addConstraint(Sketcher.Constraint("PointOnObject", 0, 2, -2))
sketch13.addConstraint(Sketcher.Constraint("Vertical", 4, 3, 1, 2))
sketch13.addConstraint(Sketcher.Constraint("Radius", 3, 3.0))
sketch13.addConstraint(Sketcher.Constraint("Radius", 4, 8.0))
sketch13.addConstraint(Sketcher.Constraint("Radius", 7, 20.0))
sketch13.addConstraint(Sketcher.Constraint("DistanceX", 1, 1, 1, 2, 20.0))
sketch13.addConstraint(Sketcher.Constraint("DistanceY", -1, 1, 4, 3, 12.0))
sketch13.addConstraint(Sketcher.Constraint("DistanceY", 7, 1, -1, 1, 12.5))
sketch13.addConstraint(Sketcher.Constraint("DistanceY", 0, 2, 0, 1, 5.53912))
sketch13.addConstraint(Sketcher.Constraint("DistanceY", 6, 1, -1, 1, 11.5415))
sketch13.addConstraint(Sketcher.Constraint("DistanceX", 7, 3, 3, 1, 17.683502))
pocket10 = doc.addObject("PartDesign::Pocket", "Pocket009")
body.addObject(pocket10)
pocket10.Profile = sketch13
pocket10.Length = 4

# Sketch on XZ plane
sketch14 = doc.addObject("Sketcher::SketchObject", "Sketch013")
body.addObject(sketch14)
sketch14.AttachmentSupport = (doc.XZ_Plane, [""])
sketch14.MapMode = "FlatFace"
sketch14.AttachmentOffset = App.Placement(App.Vector(0, 0, -58.5), App.Rotation())
sketch14.addGeometry(Part.LineSegment(App.Vector(20, 25, 0), App.Vector(20, -25, 0)), False)
sketch14.addGeometry(Part.ArcOfCircle(Part.Circle(App.Vector(58, 0, 0), App.Vector(0, 0, 1), 45), math.radians(147), math.radians(213)), False)
sketch14.addConstraint(Sketcher.Constraint("Coincident", 0, 1, 1, 1))
sketch14.addConstraint(Sketcher.Constraint("Coincident", 1, 2, 0, 2))
sketch14.addConstraint(Sketcher.Constraint("Vertical", 0))
sketch14.addConstraint(Sketcher.Constraint("PointOnObject", 1, 3, -1))
sketch14.addConstraint(Sketcher.Constraint("Radius", 1, 45.0))
sketch14.addConstraint(Sketcher.Constraint("DistanceX", -1, 1, 0, 1, 20.0))
sketch14.addConstraint(Sketcher.Constraint("DistanceY", 0, 2, 0, 1, 49.25))
pocket11 = doc.addObject("PartDesign::Pocket", "Pocket010")
body.addObject(pocket11)
pocket11.Profile = sketch14
pocket11.Type = "ThroughAll"
pocket11.Reversed = True

# Sketch on XY plane
sketch15 = doc.addObject("Sketcher::SketchObject", "Sketch014")
body.addObject(sketch15)
sketch15.AttachmentSupport = (doc.XY_Plane, [""])
sketch15.MapMode = "FlatFace"
sketch15.AttachmentOffset = App.Placement(App.Vector(0, 0, 28.625), App.Rotation())
sketch15.addGeometry(Part.Circle(App.Vector(0, 72, 0), App.Vector(0, 0, 1), 12), False)
sketch15.addGeometry(Part.Circle(App.Vector(0, 72, 0), App.Vector(0, 0, 1), 6), False)
sketch15.addConstraint(Sketcher.Constraint("Coincident", 1, 3, 0, 3))
sketch15.addConstraint(Sketcher.Constraint("PointOnObject", 0, 3, -2))
sketch15.addConstraint(Sketcher.Constraint("Diameter", 0, 25.0))
sketch15.addConstraint(Sketcher.Constraint("Diameter", 1, 13.0))
sketch15.addConstraint(Sketcher.Constraint("DistanceY", -1, 1, 0, 3, 72.5))
pad4 = doc.addObject("PartDesign::Pad", "Pad003")
body.addObject(pad4)
pad4.Profile = sketch15
pad4.Length = 4
pad4.Reversed = True

# Sketch on XY plane
sketch16 = doc.addObject("Sketcher::SketchObject", "Sketch015")
body.addObject(sketch16)
sketch16.AttachmentSupport = (doc.XY_Plane, [""])
sketch16.MapMode = "FlatFace"
sketch16.AttachmentOffset = App.Placement(App.Vector(0, 0, 28.625), App.Rotation())
sketch16.addGeometry(Part.Circle(App.Vector(0, 79.8, 0), App.Vector(0, 0, 1), 3), False)
sketch16.addConstraint(Sketcher.Constraint("PointOnObject", 0, 3, -2))
sketch16.addConstraint(Sketcher.Constraint("Diameter", 0, 6.0))
sketch16.addConstraint(Sketcher.Constraint("DistanceY", -1, 1, 0, 3, 79.8))
pocket12 = doc.addObject("PartDesign::Pocket", "Pocket011")
body.addObject(pocket12)
pocket12.Profile = sketch16
pocket12.Length = 4

# Sketch on XY plane
sketch17 = doc.addObject("Sketcher::SketchObject", "Sketch016")
body.addObject(sketch17)
sketch17.AttachmentSupport = (doc.XY_Plane, [""])
sketch17.MapMode = "FlatFace"
sketch17.AttachmentOffset = App.Placement(App.Vector(0, 0, 34.625), App.Rotation())
sketch17.addGeometry(Part.Circle(App.Vector(0, 0, 0), App.Vector(0, 0, 1), 11), False)
sketch17.addConstraint(Sketcher.Constraint("Coincident", 0, 3, -1, 1))
sketch17.addConstraint(Sketcher.Constraint("Diameter", 0, 22.0))
pad5 = doc.addObject("PartDesign::Pad", "Pad004")
body.addObject(pad5)
pad5.Profile = sketch17
pad5.Length = 1.9
pad5.Reversed = True

# Sketch on XY plane
sketch18 = doc.addObject("Sketcher::SketchObject", "Sketch017")
body.addObject(sketch18)
sketch18.AttachmentSupport = (doc.XY_Plane, [""])
sketch18.MapMode = "FlatFace"
sketch18.AttachmentOffset = App.Placement(App.Vector(0, 0, -34.625), App.Rotation())
sketch18.addGeometry(Part.Circle(App.Vector(0, 0, 0), App.Vector(0, 0, 1), 11), False)
sketch18.addConstraint(Sketcher.Constraint("Coincident", 0, 3, -1, 1))
sketch18.addConstraint(Sketcher.Constraint("Diameter", 0, 22.0))
pad6 = doc.addObject("PartDesign::Pad", "Pad005")
body.addObject(pad6)
pad6.Profile = sketch18
pad6.Length = 1.9

# Sketch on XZ plane
sketch19 = doc.addObject("Sketcher::SketchObject", "Sketch018")
body.addObject(sketch19)
sketch19.AttachmentSupport = (doc.XZ_Plane, [""])
sketch19.MapMode = "FlatFace"
sketch19.AttachmentOffset = App.Placement(App.Vector(0, 0, -22.5), App.Rotation())
sketch19.addGeometry(Part.Circle(App.Vector(0, 0, 0), App.Vector(0, 0, 1), 4), False)
sketch19.addConstraint(Sketcher.Constraint("Coincident", 0, 3, -1, 1))
sketch19.addConstraint(Sketcher.Constraint("Diameter", 0, 8.0))
pocket13 = doc.addObject("PartDesign::Pocket", "Pocket012")
body.addObject(pocket13)
pocket13.Profile = sketch19
pocket13.Length = 75

# Sketch on XZ plane
sketch20 = doc.addObject("Sketcher::SketchObject", "Sketch019")
body.addObject(sketch20)
sketch20.AttachmentSupport = (doc.XZ_Plane, [""])
sketch20.MapMode = "FlatFace"
sketch20.AttachmentOffset = App.Placement(App.Vector(0, 0, -22.5), App.Rotation())
sketch20.addGeometry(Part.Circle(App.Vector(-58, 0, 0), App.Vector(0, 0, 1), 45), False)
sketch20.addConstraint(Sketcher.Constraint("PointOnObject", 0, 3, -1))
sketch20.addConstraint(Sketcher.Constraint("Diameter", 0, 90.0))
sketch20.addConstraint(Sketcher.Constraint("DistanceX", 0, 3, -1, 1, 57.664431))
pocket14 = doc.addObject("PartDesign::Pocket", "Pocket013")
body.addObject(pocket14)
pocket14.Profile = sketch20
pocket14.Length = 8

doc.recompute()
